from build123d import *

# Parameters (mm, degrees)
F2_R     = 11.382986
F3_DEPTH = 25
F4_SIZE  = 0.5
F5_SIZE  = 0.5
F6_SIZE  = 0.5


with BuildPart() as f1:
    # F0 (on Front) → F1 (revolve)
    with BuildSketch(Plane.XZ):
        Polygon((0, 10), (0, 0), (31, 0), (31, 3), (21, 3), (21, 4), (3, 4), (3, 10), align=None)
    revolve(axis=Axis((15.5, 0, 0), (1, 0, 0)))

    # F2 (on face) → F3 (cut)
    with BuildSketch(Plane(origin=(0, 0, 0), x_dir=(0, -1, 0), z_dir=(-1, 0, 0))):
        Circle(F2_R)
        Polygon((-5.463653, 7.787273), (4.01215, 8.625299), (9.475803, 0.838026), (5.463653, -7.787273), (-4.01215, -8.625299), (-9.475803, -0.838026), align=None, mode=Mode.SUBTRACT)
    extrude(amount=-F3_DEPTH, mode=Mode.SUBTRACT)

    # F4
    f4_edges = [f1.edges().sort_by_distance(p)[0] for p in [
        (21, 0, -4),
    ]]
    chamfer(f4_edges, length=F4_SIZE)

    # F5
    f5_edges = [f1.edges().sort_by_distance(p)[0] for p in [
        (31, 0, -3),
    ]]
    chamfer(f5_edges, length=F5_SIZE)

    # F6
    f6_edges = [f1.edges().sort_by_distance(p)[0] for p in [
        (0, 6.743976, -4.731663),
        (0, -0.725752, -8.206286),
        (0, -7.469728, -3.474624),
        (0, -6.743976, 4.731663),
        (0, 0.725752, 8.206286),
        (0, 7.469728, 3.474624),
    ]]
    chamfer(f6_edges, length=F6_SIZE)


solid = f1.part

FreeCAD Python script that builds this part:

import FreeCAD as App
import Part
import Sketcher

V = App.Vector
Q = App.Units.Quantity


def edges_at(feature, points):
    """Names of the edges that pass closest to the given points."""
    edges = feature.Shape.Edges
    near = lambda p: min(range(len(edges)), key=lambda i: edges[i].distToShape(Part.Vertex(*p))[0])
    return sorted({f"Edge{near(p) + 1}" for p in points})

doc = App.newDocument("Part")
body = doc.addObject("PartDesign::Body", "Body")

# Sketch on XZ plane
sketch1 = body.newObject("Sketcher::SketchObject", "Sketch")
sketch1.AttachmentSupport = (doc.getObject("XZ_Plane"), [""])
sketch1.MapMode = "FlatFace"
sketch1.addGeometry(Part.LineSegment(V(0, 10, 0), V(0, 0, 0)), False)
sketch1.addGeometry(Part.LineSegment(V(0, 0, 0), V(31, 0, 0)), False)
sketch1.addGeometry(Part.LineSegment(V(31, 0, 0), V(31, 3, 0)), False)
sketch1.addGeometry(Part.LineSegment(V(31, 3, 0), V(21, 3, 0)), False)
sketch1.addGeometry(Part.LineSegment(V(21, 3, 0), V(21, 4, 0)), False)
sketch1.addGeometry(Part.LineSegment(V(21, 4, 0), V(3, 4, 0)), False)
sketch1.addGeometry(Part.LineSegment(V(3, 4, 0), V(3, 10, 0)), False)
sketch1.addGeometry(Part.LineSegment(V(3, 10, 0), V(0, 10, 0)), False)
sketch1.addConstraint(Sketcher.Constraint("Coincident", 0, 2, 1, 1))
sketch1.addConstraint(Sketcher.Constraint("Coincident", 1, 2, 2, 1))
sketch1.addConstraint(Sketcher.Constraint("Coincident", 2, 2, 3, 1))
sketch1.addConstraint(Sketcher.Constraint("Coincident", 3, 2, 4, 1))
sketch1.addConstraint(Sketcher.Constraint("Coincident", 4, 2, 5, 1))
sketch1.addConstraint(Sketcher.Constraint("Coincident", 5, 2, 6, 1))
sketch1.addConstraint(Sketcher.Constraint("Coincident", 6, 2, 7, 1))
sketch1.addConstraint(Sketcher.Constraint("Coincident", 7, 2, 0, 1))
sketch1.addConstraint(Sketcher.Constraint("Vertical", 0))
sketch1.addConstraint(Sketcher.Constraint("Horizontal", 1))
sketch1.addConstraint(Sketcher.Constraint("Vertical", 2))
sketch1.addConstraint(Sketcher.Constraint("Horizontal", 3))
sketch1.addConstraint(Sketcher.Constraint("Vertical", 4))
sketch1.addConstraint(Sketcher.Constraint("Horizontal", 5))
sketch1.addConstraint(Sketcher.Constraint("Vertical", 6))
sketch1.addConstraint(Sketcher.Constraint("Horizontal", 7))
sketch1.addConstraint(Sketcher.Constraint("Coincident", 0, 2, -1, 1))
sketch1.addConstraint(Sketcher.Constraint("Equal", 3, 0))
sketch1.addConstraint(Sketcher.Constraint("Equal", 7, 2))
sketch1.addConstraint(Sketcher.Constraint("DistanceX", 1, 1, 1, 2, Q("31 mm")))
sketch1.addConstraint(Sketcher.Constraint("DistanceX", 3, 2, 3, 1, Q("10 mm")))
sketch1.addConstraint(Sketcher.Constraint("DistanceX", 5, 2, 5, 1, Q("18 mm")))
sketch1.addConstraint(Sketcher.Constraint("DistanceY", 4, 1, 4, 2, Q("1 mm")))
revolution = body.newObject("PartDesign::Revolution", "Revolution")
revolution.Profile = sketch1
revolution.ReferenceAxis = (sketch1, ["H_Axis"])
revolution.Angle = 360

# Sketch on YZ plane
sketch2 = body.newObject("Sketcher::SketchObject", "Sketch001")
sketch2.AttachmentSupport = (doc.getObject("YZ_Plane"), [""])
sketch2.MapMode = "FlatFace"
sketch2.addGeometry(Part.Circle(V(0, 0, 0), V(0, 0, 1), 11.382986), False)
sketch2.addGeometry(Part.LineSegment(V(9.475803, -0.838026, 0), V(5.463653, 7.787273, 0)), False)
sketch2.addGeometry(Part.LineSegment(V(5.463653, 7.787273, 0), V(-4.01215, 8.625299, 0)), False)
sketch2.addGeometry(Part.LineSegment(V(-4.01215, 8.625299, 0), V(-9.475803, 0.838026, 0)), False)
sketch2.addGeometry(Part.LineSegment(V(-9.475803, 0.838026, 0), V(-5.463653, -7.787273, 0)), False)
sketch2.addGeometry(Part.LineSegment(V(-5.463653, -7.787273, 0), V(4.01215, -8.625299, 0)), False)
sketch2.addGeometry(Part.LineSegment(V(4.01215, -8.625299, 0), V(9.475803, -0.838026, 0)), False)
sketch2.addConstraint(Sketcher.Constraint("Coincident", 1, 2, 2, 1))
sketch2.addConstraint(Sketcher.Constraint("Coincident", 2, 2, 3, 1))
sketch2.addConstraint(Sketcher.Constraint("Coincident", 3, 2, 4, 1))
sketch2.addConstraint(Sketcher.Constraint("Coincident", 4, 2, 5, 1))
sketch2.addConstraint(Sketcher.Constraint("Coincident", 5, 2, 6, 1))
sketch2.addConstraint(Sketcher.Constraint("Coincident", 6, 2, 1, 1))
sketch2.addConstraint(Sketcher.Constraint("Coincident", 0, 3, -1, 1))
sketch2.addConstraint(Sketcher.Constraint("Symmetric", 1, 2, 4, 2, -1, 1))
sketch2.addConstraint(Sketcher.Constraint("Symmetric", 2, 2, 5, 2, -1, 1))
sketch2.addConstraint(Sketcher.Constraint("Symmetric", 3, 2, 6, 2, -1, 1))
sketch2.addConstraint(Sketcher.Constraint("Equal", 1, 2))
sketch2.addConstraint(Sketcher.Constraint("Equal", 2, 3))
sketch2.addConstraint(Sketcher.Constraint("Diameter", 0, Q("22.765972 mm")))
sketch2.addConstraint(Sketcher.Constraint("DistanceY", -1, 1, 2, 2, Q("8.625299 mm")))
sketch2.addConstraint(Sketcher.Constraint("DistanceY", 4, 2, 3, 2, Q("8.625299 mm")))
sketch2.addConstraint(Sketcher.Constraint("DistanceX", 2, 2, 5, 2, Q("8.0243 mm")))
sketch2.addConstraint(Sketcher.Constraint("DistanceX", 3, 2, 4, 2, Q("4.01215 mm")))
pocket1 = body.newObject("PartDesign::Pocket", "Pocket")
pocket1.Profile = sketch2
pocket1.Length = 25
pocket1.Reversed = True
doc.recompute()

chamfer = body.newObject("PartDesign::Chamfer", "Chamfer")
chamfer.Base = (pocket1, edges_at(pocket1, [(21, 0, -4)]))
chamfer.Size = 0.5
doc.recompute()

chamfer2 = body.newObject("PartDesign::Chamfer", "Chamfer001")
chamfer2.Base = (chamfer, edges_at(chamfer, [(31, 0, -3)]))
chamfer2.Size = 0.5
doc.recompute()

chamfer3 = body.newObject("PartDesign::Chamfer", "Chamfer002")
chamfer3.Base = (chamfer2, edges_at(chamfer2, [
    (0, 6.744, -4.732),
    (0, -0.726, -8.206),
    (0, -7.47, -3.475),
    (0, -6.744, 4.732),
    (0, 0.726, 8.206),
    (0, 7.47, 3.475),
]))
chamfer3.Size = 0.5

doc.recompute()
